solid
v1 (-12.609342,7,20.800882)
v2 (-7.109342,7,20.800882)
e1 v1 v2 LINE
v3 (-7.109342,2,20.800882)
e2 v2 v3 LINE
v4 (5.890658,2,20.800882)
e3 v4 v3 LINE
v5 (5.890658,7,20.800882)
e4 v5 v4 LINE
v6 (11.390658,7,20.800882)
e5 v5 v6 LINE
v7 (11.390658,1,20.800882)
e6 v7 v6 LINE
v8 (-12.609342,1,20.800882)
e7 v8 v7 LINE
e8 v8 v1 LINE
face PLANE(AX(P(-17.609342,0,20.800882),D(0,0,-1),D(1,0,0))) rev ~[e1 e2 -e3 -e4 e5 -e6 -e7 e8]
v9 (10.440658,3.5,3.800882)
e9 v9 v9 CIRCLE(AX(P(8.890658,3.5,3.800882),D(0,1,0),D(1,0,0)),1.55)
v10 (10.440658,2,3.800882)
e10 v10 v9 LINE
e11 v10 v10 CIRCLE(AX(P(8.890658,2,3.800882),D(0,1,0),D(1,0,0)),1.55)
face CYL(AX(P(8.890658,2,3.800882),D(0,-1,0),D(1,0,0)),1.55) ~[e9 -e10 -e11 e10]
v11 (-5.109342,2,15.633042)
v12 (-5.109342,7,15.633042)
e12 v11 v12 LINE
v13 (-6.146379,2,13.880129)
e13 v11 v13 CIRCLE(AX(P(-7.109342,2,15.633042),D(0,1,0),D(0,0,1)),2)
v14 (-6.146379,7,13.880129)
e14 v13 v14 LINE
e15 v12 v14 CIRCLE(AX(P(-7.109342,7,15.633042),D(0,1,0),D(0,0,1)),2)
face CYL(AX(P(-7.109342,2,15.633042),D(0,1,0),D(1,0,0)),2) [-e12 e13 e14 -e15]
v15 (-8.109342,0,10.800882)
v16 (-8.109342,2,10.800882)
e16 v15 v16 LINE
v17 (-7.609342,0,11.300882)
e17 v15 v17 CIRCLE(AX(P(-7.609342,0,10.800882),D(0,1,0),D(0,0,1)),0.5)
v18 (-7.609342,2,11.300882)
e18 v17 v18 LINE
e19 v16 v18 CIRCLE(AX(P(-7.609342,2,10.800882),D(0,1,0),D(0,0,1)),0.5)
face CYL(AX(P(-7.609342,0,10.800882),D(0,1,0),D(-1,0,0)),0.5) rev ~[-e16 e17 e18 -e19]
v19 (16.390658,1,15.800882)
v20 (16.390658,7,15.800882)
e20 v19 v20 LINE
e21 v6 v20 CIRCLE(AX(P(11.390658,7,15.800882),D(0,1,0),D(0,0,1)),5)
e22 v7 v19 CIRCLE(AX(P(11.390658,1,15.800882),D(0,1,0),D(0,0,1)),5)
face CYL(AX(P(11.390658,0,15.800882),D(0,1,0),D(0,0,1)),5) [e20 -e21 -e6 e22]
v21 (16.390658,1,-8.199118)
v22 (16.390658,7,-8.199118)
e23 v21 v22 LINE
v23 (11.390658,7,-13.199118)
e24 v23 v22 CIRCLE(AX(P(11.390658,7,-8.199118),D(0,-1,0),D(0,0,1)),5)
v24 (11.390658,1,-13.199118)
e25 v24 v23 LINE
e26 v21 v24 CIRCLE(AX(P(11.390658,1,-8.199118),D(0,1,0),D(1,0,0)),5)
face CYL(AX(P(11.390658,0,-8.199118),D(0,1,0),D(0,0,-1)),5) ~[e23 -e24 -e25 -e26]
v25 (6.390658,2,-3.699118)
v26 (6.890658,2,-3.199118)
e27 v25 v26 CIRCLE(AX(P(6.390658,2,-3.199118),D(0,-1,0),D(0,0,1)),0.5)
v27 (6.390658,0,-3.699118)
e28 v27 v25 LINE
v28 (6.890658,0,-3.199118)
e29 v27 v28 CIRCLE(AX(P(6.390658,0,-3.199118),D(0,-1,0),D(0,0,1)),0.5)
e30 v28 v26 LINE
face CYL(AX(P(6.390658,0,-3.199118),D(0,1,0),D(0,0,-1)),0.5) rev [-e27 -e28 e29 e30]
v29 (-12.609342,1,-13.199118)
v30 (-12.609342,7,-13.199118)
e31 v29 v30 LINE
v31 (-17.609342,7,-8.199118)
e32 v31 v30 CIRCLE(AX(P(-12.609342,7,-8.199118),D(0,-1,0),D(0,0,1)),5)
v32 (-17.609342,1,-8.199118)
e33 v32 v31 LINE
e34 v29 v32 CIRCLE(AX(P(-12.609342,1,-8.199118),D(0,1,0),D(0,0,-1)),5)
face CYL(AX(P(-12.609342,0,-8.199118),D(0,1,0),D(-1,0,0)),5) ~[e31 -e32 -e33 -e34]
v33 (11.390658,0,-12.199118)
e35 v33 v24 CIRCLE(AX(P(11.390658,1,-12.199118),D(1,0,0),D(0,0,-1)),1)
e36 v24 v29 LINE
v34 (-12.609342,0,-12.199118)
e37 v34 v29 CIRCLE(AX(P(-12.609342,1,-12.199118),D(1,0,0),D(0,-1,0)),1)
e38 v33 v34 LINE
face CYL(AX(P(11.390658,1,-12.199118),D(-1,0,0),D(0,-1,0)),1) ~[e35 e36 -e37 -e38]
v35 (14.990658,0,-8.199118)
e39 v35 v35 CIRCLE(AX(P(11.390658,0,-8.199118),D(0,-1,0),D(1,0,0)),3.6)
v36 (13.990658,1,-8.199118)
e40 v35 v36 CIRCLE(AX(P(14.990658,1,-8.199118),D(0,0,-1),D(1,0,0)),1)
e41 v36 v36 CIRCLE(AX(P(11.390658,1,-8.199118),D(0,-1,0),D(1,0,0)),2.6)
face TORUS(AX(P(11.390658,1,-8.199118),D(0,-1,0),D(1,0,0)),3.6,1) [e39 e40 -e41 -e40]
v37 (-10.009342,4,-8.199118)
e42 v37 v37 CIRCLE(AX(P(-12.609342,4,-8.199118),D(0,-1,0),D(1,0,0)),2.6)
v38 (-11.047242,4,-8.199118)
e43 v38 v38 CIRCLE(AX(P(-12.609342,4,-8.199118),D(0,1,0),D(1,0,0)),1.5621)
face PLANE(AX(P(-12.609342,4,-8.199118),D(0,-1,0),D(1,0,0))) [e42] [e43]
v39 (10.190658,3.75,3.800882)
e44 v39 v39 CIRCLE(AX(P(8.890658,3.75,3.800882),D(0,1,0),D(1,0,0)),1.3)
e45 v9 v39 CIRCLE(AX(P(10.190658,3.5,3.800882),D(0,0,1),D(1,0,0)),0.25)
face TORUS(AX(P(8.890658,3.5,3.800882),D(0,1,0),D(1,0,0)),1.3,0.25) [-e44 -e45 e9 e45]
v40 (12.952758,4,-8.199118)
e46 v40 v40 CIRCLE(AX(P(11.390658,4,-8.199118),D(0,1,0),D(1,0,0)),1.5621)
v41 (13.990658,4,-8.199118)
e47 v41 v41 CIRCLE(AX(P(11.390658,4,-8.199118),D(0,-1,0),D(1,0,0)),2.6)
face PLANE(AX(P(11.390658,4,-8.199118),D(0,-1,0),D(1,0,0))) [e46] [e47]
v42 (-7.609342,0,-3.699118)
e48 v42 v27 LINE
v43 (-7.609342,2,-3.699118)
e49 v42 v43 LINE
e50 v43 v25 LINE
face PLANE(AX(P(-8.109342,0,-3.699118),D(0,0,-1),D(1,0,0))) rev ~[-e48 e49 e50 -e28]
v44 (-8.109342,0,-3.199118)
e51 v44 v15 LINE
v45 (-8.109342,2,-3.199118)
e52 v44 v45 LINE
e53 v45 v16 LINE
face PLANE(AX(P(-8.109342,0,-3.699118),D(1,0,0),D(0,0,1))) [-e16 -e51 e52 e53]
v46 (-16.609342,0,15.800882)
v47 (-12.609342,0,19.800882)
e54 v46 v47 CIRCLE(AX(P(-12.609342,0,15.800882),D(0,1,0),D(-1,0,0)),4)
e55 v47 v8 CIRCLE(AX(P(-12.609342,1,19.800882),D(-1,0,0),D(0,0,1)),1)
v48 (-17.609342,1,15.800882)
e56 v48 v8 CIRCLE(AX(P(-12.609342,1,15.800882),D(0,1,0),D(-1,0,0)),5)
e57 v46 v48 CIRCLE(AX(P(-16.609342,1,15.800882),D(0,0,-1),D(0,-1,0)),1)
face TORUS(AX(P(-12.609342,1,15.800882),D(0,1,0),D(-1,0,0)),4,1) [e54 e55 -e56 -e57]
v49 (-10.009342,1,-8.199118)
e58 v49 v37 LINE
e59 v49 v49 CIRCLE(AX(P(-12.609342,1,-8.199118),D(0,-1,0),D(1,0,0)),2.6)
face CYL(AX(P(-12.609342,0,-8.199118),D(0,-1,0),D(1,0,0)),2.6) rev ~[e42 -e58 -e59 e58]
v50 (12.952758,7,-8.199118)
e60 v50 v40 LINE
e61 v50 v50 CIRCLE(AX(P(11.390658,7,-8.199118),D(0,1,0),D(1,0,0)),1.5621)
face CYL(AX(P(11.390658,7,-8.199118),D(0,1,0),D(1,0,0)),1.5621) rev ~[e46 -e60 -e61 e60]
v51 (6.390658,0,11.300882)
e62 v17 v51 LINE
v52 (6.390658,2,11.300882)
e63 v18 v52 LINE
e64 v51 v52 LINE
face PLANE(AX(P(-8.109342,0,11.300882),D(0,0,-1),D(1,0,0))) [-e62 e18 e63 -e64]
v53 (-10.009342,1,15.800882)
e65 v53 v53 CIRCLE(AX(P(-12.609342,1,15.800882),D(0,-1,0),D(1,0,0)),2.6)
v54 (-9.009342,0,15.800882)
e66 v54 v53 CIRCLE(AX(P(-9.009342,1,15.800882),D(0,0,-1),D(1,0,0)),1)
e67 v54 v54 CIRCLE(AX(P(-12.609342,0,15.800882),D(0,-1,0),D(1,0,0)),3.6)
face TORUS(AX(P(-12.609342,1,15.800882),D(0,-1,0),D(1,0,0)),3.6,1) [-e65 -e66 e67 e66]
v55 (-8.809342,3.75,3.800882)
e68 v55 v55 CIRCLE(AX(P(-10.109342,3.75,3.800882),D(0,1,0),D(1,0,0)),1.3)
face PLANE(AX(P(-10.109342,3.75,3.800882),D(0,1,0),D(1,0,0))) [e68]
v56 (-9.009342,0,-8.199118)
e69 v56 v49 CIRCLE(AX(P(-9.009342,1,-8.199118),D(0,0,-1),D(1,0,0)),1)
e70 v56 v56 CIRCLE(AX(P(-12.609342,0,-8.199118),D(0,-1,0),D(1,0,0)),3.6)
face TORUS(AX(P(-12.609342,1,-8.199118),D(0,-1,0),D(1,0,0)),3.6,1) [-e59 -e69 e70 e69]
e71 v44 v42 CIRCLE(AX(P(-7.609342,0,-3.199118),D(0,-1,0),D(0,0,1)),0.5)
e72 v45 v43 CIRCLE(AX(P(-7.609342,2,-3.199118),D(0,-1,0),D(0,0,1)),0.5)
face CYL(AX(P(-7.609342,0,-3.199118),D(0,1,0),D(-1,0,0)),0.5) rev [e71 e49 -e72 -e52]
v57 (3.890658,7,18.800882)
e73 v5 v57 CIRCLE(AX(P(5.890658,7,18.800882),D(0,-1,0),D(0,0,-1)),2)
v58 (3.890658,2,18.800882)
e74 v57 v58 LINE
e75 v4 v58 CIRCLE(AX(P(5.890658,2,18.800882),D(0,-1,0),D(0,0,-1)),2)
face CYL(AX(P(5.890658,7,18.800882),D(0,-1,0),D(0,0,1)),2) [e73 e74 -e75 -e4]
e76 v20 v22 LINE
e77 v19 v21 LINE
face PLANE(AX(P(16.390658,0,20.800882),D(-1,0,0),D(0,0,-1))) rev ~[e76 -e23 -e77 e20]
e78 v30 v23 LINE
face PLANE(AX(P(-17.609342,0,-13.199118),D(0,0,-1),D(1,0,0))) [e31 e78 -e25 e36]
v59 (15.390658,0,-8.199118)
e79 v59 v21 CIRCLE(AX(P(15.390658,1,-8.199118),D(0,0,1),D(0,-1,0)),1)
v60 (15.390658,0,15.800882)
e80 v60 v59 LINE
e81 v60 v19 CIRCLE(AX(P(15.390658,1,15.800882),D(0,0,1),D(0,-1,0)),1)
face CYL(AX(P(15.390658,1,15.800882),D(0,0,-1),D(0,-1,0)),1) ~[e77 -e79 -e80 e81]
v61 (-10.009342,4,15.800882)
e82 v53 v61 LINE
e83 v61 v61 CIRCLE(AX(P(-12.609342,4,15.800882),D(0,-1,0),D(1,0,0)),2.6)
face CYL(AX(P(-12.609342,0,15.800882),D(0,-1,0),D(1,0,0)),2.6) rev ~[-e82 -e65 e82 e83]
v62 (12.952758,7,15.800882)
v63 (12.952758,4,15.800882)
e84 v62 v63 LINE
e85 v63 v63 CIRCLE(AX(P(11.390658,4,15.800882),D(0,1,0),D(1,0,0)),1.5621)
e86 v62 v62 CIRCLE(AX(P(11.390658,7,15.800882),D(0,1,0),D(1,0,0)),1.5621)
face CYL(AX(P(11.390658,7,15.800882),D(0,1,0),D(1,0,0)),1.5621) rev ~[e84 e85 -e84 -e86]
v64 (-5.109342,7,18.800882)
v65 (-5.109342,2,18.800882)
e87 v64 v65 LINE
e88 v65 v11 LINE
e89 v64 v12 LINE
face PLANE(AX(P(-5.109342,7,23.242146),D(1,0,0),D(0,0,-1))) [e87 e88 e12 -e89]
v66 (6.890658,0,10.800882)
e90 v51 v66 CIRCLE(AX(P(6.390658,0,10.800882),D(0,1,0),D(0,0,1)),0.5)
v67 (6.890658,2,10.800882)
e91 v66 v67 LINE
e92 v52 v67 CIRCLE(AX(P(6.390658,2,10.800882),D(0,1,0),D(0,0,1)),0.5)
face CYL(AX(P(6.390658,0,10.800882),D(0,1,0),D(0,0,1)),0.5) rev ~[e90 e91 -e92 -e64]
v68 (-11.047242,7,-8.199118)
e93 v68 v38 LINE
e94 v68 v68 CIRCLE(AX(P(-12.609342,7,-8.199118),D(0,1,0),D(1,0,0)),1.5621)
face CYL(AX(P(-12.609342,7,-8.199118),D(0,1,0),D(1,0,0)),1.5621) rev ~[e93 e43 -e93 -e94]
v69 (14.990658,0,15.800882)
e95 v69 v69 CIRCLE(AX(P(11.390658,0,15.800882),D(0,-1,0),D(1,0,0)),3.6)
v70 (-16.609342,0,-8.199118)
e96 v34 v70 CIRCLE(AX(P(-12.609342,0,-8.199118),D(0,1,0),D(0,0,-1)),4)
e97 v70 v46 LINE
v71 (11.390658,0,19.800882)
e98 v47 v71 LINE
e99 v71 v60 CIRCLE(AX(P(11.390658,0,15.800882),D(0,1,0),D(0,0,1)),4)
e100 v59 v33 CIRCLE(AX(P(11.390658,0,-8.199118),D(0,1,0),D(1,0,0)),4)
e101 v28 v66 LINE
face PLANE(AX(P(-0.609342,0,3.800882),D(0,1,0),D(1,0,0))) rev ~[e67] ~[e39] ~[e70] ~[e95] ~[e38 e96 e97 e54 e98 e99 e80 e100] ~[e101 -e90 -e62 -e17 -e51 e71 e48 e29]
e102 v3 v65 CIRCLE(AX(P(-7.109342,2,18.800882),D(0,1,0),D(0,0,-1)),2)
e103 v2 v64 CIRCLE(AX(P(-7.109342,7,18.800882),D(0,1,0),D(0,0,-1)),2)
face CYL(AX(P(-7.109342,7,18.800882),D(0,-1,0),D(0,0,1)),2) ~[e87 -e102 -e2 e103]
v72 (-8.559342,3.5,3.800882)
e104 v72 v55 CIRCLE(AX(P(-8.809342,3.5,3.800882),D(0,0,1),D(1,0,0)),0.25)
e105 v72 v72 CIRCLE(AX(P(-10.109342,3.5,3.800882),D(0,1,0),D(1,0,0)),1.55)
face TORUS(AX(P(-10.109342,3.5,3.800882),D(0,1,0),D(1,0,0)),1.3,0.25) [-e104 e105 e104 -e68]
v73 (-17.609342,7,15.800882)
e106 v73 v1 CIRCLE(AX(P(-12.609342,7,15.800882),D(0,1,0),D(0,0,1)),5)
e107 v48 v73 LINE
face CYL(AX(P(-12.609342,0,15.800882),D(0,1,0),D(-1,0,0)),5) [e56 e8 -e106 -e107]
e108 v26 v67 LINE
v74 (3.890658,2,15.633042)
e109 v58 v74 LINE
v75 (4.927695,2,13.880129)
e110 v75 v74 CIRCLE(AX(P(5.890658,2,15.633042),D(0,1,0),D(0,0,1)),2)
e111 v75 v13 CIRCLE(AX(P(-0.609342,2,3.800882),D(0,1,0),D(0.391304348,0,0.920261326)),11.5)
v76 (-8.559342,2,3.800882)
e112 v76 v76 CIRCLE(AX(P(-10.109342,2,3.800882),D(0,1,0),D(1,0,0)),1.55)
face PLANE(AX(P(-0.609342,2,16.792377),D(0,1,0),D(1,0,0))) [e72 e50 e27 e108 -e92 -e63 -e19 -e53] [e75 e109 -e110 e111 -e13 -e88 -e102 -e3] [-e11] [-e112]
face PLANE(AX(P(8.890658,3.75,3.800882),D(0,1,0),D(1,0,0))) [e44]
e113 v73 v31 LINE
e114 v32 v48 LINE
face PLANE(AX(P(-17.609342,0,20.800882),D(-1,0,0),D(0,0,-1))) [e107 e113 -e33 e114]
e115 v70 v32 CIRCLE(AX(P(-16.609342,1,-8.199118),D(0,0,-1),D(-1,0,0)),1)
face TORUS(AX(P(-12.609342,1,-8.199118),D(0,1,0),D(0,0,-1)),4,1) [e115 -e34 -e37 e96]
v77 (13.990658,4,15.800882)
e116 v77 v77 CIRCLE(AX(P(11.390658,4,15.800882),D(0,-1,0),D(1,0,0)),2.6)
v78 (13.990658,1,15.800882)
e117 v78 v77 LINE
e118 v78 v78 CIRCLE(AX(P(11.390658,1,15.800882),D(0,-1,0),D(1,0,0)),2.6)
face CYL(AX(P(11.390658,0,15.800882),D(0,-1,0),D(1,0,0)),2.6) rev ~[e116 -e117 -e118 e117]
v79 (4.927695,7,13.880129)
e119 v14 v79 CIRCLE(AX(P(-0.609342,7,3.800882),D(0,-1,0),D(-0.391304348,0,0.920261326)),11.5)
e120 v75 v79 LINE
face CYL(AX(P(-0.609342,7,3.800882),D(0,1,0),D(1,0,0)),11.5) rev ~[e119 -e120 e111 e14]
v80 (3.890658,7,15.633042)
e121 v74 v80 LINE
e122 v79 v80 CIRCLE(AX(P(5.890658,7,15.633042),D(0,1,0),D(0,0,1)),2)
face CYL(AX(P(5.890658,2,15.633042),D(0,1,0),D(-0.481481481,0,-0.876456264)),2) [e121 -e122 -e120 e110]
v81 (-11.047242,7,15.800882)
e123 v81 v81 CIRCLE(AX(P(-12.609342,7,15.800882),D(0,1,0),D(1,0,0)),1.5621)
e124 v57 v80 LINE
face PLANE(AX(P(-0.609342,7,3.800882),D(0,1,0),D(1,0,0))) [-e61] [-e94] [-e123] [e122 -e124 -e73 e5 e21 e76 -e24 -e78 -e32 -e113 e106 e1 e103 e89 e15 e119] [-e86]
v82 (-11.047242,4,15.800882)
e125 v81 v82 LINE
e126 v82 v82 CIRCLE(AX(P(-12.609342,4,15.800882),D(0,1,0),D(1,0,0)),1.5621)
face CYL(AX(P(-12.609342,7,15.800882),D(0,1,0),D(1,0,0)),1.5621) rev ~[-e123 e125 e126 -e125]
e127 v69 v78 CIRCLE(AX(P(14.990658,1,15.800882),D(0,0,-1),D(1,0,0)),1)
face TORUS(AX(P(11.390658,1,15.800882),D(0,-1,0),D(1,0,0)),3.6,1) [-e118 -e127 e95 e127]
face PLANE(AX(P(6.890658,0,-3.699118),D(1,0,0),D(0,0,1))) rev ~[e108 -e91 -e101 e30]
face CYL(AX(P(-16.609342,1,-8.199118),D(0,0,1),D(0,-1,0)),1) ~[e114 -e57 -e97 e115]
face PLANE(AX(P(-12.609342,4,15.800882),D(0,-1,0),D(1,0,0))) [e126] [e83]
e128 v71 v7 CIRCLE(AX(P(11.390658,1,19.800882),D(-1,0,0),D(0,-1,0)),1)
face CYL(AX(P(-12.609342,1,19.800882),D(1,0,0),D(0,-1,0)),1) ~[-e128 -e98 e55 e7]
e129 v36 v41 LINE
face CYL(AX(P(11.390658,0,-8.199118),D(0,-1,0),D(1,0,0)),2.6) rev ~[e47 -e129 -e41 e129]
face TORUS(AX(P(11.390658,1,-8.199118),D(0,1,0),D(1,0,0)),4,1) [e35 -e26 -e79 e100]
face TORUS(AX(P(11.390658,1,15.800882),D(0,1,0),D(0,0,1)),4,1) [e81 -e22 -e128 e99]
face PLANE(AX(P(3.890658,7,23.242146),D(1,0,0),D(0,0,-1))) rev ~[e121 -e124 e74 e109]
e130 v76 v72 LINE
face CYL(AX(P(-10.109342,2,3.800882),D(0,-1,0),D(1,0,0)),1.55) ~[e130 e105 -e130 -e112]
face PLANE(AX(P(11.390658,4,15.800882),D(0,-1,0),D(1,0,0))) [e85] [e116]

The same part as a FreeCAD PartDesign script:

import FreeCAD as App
import Part
import Sketcher

V = App.Vector


def edges_at(feature, points):
    """Names of the edges that pass closest to the given points."""
    edges = feature.Shape.Edges
    near = lambda p: min(range(len(edges)), key=lambda i: edges[i].distToShape(Part.Vertex(*p))[0])
    return sorted({f"Edge{near(p) + 1}" for p in points})

doc = App.newDocument("Part")
body = doc.addObject("PartDesign::Body", "Body")

sketch1 = body.newObject("Sketcher::SketchObject", "Sketch")
sketch1.AttachmentSupport = (doc.getObject("XZ_Plane"), [""])
sketch1.MapMode = "FlatFace"
sketch1.addGeometry([
    Part.LineSegment(V(-18, -13, 0), V(-18, 21, 0)),
    Part.LineSegment(V(-18, 21, 0), V(16, 21, 0)),
    Part.LineSegment(V(16, 21, 0), V(16, -13, 0)),
    Part.LineSegment(V(16, -13, 0), V(-18, -13, 0)),
], False)
sketch1.addConstraint([
    Sketcher.Constraint("Coincident", 0, 2, 1, 1),
    Sketcher.Constraint("Coincident", 1, 2, 2, 1),
    Sketcher.Constraint("Coincident", 2, 2, 3, 1),
    Sketcher.Constraint("Coincident", 3, 2, 0, 1),
    Sketcher.Constraint("Vertical", 0),
    Sketcher.Constraint("Horizontal", 1),
    Sketcher.Constraint("Vertical", 2),
    Sketcher.Constraint("Horizontal", 3),
    Sketcher.Constraint("Equal", 3, 0),
    Sketcher.Constraint("DistanceX", 1, 1, 1, 2, 34.0),
    Sketcher.Constraint("DistanceX", 0, 2, -1, 1, 17.609342),
    Sketcher.Constraint("DistanceY", -1, 1, 0, 2, 20.800882),
])
pad1 = body.newObject("PartDesign::Pad", "Pad")
pad1.Profile = sketch1
pad1.Length = 7
pad1.Reversed = True

sketch2 = body.newObject("Sketcher::SketchObject", "Sketch001")
sketch2.AttachmentSupport = (doc.getObject("XZ_Plane"), [""])
sketch2.MapMode = "FlatFace"
sketch2.AttachmentOffset = App.Placement(V(0, 0, -7), App.Rotation())
sketch2.addGeometry(Part.Circle(V(-1, 4, 0), V(0, 0, 1), 12), False)
sketch2.addConstraint([
    Sketcher.Constraint("Diameter", 0, 23.0),
    Sketcher.Constraint("DistanceX", 0, 3, -1, 1, 0.609342),
    Sketcher.Constraint("DistanceY", -1, 1, 0, 3, 3.800882),
])
pocket1 = body.newObject("PartDesign::Pocket", "Pocket")
pocket1.Profile = sketch2
pocket1.Length = 5
pocket1.Reversed = True

sketch3 = body.newObject("Sketcher::SketchObject", "Sketch002")
sketch3.AttachmentSupport = (doc.getObject("XZ_Plane"), [""])
sketch3.MapMode = "FlatFace"
sketch3.AttachmentOffset = App.Placement(V(0, 0, -7), App.Rotation())
sketch3.addGeometry([
    Part.Circle(V(-12.6, -8.2, 0), V(0, 0, 1), 1.6),
    Part.Circle(V(-12.6, 15.8, 0), V(0, 0, 1), 1.6),
    Part.Circle(V(11.4, 15.8, 0), V(0, 0, 1), 1.6),
    Part.Circle(V(11.4, -8.2, 0), V(0, 0, 1), 1.6),
], False)
sketch3.addConstraint([
    Sketcher.Constraint("Equal", 0, 1),
    Sketcher.Constraint("Equal", 1, 2),
    Sketcher.Constraint("Equal", 2, 3),
    Sketcher.Constraint("Horizontal", 1, 3, 2, 3),
    Sketcher.Constraint("Horizontal", 0, 3, 3, 3),
    Sketcher.Constraint("Vertical", 0, 3, 1, 3),
    Sketcher.Constraint("Vertical", 2, 3, 3, 3),
    Sketcher.Constraint("DistanceY", 0, 3, 1, 3, 24.0),
    Sketcher.Constraint("DistanceX", 1, 3, 2, 3, 24.0),
    Sketcher.Constraint("Diameter", 0, 3.1242),
    Sketcher.Constraint("DistanceX", 0, 3, -1, 1, 12.609342),
    Sketcher.Constraint("DistanceY", 0, 3, -1, 1, 8.199118),
])
pocket2 = body.newObject("PartDesign::Pocket", "Pocket001")
pocket2.Profile = sketch3
pocket2.Type = "ThroughAll"
pocket2.Reversed = True

sketch4 = body.newObject("Sketcher::SketchObject", "Sketch003")
sketch4.AttachmentSupport = (doc.getObject("XZ_Plane"), [""])
sketch4.MapMode = "FlatFace"
sketch4.AttachmentOffset = App.Placement(V(0, 0, -7), App.Rotation())
sketch4.addGeometry([
    Part.LineSegment(V(-5, 10, 0), V(-5, 23, 0)),
    Part.LineSegment(V(-5, 23, 0), V(4, 23, 0)),
    Part.LineSegment(V(4, 23, 0), V(4, 10, 0)),
    Part.LineSegment(V(4, 10, 0), V(-5, 10, 0)),
], False)
sketch4.addConstraint([
    Sketcher.Constraint("Coincident", 0, 2, 1, 1),
    Sketcher.Constraint("Coincident", 1, 2, 2, 1),
    Sketcher.Constraint("Coincident", 2, 2, 3, 1),
    Sketcher.Constraint("Coincident", 3, 2, 0, 1),
    Sketcher.Constraint("Vertical", 0),
    Sketcher.Constraint("Horizontal", 1),
    Sketcher.Constraint("Vertical", 2),
    Sketcher.Constraint("Horizontal", 3),
    Sketcher.Constraint("DistanceX", 1, 1, 1, 2, 9.0),
    Sketcher.Constraint("DistanceY", 0, 1, 0, 2, 12.899537),
    Sketcher.Constraint("DistanceY", -1, 1, 2, 2, 10.342608),
    Sketcher.Constraint("DistanceX", 0, 2, -1, 1, 5.109342),
])
pocket3 = body.newObject("PartDesign::Pocket", "Pocket002")
pocket3.Profile = sketch4
pocket3.Length = 5
pocket3.Reversed = True

sketch5 = body.newObject("Sketcher::SketchObject", "Sketch004")
sketch5.AttachmentSupport = (doc.getObject("XZ_Plane"), [""])
sketch5.MapMode = "FlatFace"
sketch5.addGeometry([
    Part.Circle(V(-12.6, 15.8, 0), V(0, 0, 1), 2.6),
    Part.Circle(V(11.4, 15.8, 0), V(0, 0, 1), 2.6),
    Part.Circle(V(-12.6, -8.2, 0), V(0, 0, 1), 2.6),
    Part.Circle(V(11.4, -8.2, 0), V(0, 0, 1), 2.6),
], False)
sketch5.addConstraint([
    Sketcher.Constraint("Equal", 0, 1),
    Sketcher.Constraint("Equal", 1, 2),
    Sketcher.Constraint("Equal", 2, 3),
    Sketcher.Constraint("Horizontal", 0, 3, 1, 3),
    Sketcher.Constraint("Horizontal", 2, 3, 3, 3),
    Sketcher.Constraint("Vertical", 0, 3, 2, 3),
    Sketcher.Constraint("Vertical", 1, 3, 3, 3),
    Sketcher.Constraint("Diameter", 0, 5.2),
    Sketcher.Constraint("DistanceX", 0, 3, 1, 3, 24.0),
    Sketcher.Constraint("DistanceY", 2, 3, 0, 3, 24.0),
    Sketcher.Constraint("DistanceX", 0, 3, -1, 1, 12.609342),
    Sketcher.Constraint("DistanceY", -1, 1, 0, 3, 15.800882),
])
pocket4 = body.newObject("PartDesign::Pocket", "Pocket003")
pocket4.Profile = sketch5
pocket4.Length = 4
doc.recompute()

fillet = body.newObject("PartDesign::Fillet", "Fillet")
fillet.Base = (pocket4, edges_at(pocket4, [
    (-17.609, 3.5, -13.199),
    (16.391, 3.5, -13.199),
    (16.391, 3.5, 20.801),
    (-17.609, 3.5, 20.801),
]))
fillet.Radius = 5
doc.recompute()

fillet2 = body.newObject("PartDesign::Fillet", "Fillet001")
fillet2.Base = (fillet, edges_at(fillet, [
    (-15.209, 0, 15.801),
    (8.791, 0, 15.801),
    (-15.209, 0, -8.199),
    (8.791, 0, -8.199),
    (16.391, 0, 3.801),
    (-17.609, 0, 3.801),
    (-0.609, 0, -13.199),
    (-0.609, 0, 20.801),
    (-16.145, 0, 19.336),
    (-16.145, 0, -11.735),
    (14.926, 0, -11.735),
    (14.926, 0, 19.336),
]))
fillet2.Radius = 1
doc.recompute()

fillet3 = body.newObject("PartDesign::Fillet", "Fillet002")
fillet3.Base = (fillet2, edges_at(fillet2, [
    (-5.109, 4.5, 20.801),
    (-5.109, 4.5, 14.384),
    (3.891, 4.5, 20.801),
    (3.891, 4.5, 14.384),
]))
fillet3.Radius = 2

sketch6 = body.newObject("Sketcher::SketchObject", "Sketch005")
sketch6.AttachmentSupport = (doc.getObject("XZ_Plane"), [""])
sketch6.MapMode = "FlatFace"
sketch6.addGeometry([
    Part.LineSegment(V(-8, 11, 0), V(-8, -4, 0)),
    Part.LineSegment(V(-8, -4, 0), V(7, -4, 0)),
    Part.LineSegment(V(7, -4, 0), V(7, 11, 0)),
    Part.LineSegment(V(7, 11, 0), V(-8, 11, 0)),
], False)
sketch6.addConstraint([
    Sketcher.Constraint("Coincident", 0, 2, 1, 1),
    Sketcher.Constraint("Coincident", 1, 2, 2, 1),
    Sketcher.Constraint("Coincident", 2, 2, 3, 1),
    Sketcher.Constraint("Coincident", 3, 2, 0, 1),
    Sketcher.Constraint("Vertical", 0),
    Sketcher.Constraint("Horizontal", 1),
    Sketcher.Constraint("Vertical", 2),
    Sketcher.Constraint("Horizontal", 3),
    Sketcher.Constraint("Equal", 3, 0),
    Sketcher.Constraint("DistanceX", 1, 1, 1, 2, 15.0),
    Sketcher.Constraint("DistanceX", 0, 2, -1, 1, 8.109342),
    Sketcher.Constraint("DistanceY", 0, 2, -1, 1, 3.699118),
])
pocket5 = body.newObject("PartDesign::Pocket", "Pocket004")
pocket5.Profile = sketch6
pocket5.Length = 2

sketch7 = body.newObject("Sketcher::SketchObject", "Sketch006")
sketch7.AttachmentSupport = (doc.getObject("XZ_Plane"), [""])
sketch7.MapMode = "FlatFace"
sketch7.AttachmentOffset = App.Placement(V(0, 0, -2), App.Rotation())
sketch7.addGeometry([
    Part.Circle(V(8.9, 3.8, 0), V(0, 0, 1), 1.6),
    Part.Circle(V(-10.1, 3.8, 0), V(0, 0, 1), 1.6),
], False)
sketch7.addConstraint([
    Sketcher.Constraint("Equal", 0, 1),
    Sketcher.Constraint("Horizontal", 0, 3, 1, 3),
    Sketcher.Constraint("Diameter", 0, 3.1),
    Sketcher.Constraint("DistanceX", 1, 3, 0, 3, 19.0),
    Sketcher.Constraint("DistanceX", -1, 1, 0, 3, 8.890658),
    Sketcher.Constraint("DistanceY", -1, 1, 0, 3, 3.800882),
])
pad2 = body.newObject("PartDesign::Pad", "Pad001")
pad2.Profile = sketch7
pad2.Length = 1.75
pad2.Reversed = True
doc.recompute()

fillet4 = body.newObject("PartDesign::Fillet", "Fillet003")
fillet4.Base = (pad2, edges_at(pad2, [(7.341, 3.75, 3.801), (-11.659, 3.75, 3.801)]))
fillet4.Radius = 0.25
doc.recompute()

fillet5 = body.newObject("PartDesign::Fillet", "Fillet004")
fillet5.Base = (fillet4, edges_at(fillet4, [
    (-8.109, 1, -3.699),
    (-8.109, 1, 11.301),
    (6.891, 1, 11.301),
    (6.891, 1, -3.699),
]))
fillet5.Radius = 0.5

doc.recompute()
